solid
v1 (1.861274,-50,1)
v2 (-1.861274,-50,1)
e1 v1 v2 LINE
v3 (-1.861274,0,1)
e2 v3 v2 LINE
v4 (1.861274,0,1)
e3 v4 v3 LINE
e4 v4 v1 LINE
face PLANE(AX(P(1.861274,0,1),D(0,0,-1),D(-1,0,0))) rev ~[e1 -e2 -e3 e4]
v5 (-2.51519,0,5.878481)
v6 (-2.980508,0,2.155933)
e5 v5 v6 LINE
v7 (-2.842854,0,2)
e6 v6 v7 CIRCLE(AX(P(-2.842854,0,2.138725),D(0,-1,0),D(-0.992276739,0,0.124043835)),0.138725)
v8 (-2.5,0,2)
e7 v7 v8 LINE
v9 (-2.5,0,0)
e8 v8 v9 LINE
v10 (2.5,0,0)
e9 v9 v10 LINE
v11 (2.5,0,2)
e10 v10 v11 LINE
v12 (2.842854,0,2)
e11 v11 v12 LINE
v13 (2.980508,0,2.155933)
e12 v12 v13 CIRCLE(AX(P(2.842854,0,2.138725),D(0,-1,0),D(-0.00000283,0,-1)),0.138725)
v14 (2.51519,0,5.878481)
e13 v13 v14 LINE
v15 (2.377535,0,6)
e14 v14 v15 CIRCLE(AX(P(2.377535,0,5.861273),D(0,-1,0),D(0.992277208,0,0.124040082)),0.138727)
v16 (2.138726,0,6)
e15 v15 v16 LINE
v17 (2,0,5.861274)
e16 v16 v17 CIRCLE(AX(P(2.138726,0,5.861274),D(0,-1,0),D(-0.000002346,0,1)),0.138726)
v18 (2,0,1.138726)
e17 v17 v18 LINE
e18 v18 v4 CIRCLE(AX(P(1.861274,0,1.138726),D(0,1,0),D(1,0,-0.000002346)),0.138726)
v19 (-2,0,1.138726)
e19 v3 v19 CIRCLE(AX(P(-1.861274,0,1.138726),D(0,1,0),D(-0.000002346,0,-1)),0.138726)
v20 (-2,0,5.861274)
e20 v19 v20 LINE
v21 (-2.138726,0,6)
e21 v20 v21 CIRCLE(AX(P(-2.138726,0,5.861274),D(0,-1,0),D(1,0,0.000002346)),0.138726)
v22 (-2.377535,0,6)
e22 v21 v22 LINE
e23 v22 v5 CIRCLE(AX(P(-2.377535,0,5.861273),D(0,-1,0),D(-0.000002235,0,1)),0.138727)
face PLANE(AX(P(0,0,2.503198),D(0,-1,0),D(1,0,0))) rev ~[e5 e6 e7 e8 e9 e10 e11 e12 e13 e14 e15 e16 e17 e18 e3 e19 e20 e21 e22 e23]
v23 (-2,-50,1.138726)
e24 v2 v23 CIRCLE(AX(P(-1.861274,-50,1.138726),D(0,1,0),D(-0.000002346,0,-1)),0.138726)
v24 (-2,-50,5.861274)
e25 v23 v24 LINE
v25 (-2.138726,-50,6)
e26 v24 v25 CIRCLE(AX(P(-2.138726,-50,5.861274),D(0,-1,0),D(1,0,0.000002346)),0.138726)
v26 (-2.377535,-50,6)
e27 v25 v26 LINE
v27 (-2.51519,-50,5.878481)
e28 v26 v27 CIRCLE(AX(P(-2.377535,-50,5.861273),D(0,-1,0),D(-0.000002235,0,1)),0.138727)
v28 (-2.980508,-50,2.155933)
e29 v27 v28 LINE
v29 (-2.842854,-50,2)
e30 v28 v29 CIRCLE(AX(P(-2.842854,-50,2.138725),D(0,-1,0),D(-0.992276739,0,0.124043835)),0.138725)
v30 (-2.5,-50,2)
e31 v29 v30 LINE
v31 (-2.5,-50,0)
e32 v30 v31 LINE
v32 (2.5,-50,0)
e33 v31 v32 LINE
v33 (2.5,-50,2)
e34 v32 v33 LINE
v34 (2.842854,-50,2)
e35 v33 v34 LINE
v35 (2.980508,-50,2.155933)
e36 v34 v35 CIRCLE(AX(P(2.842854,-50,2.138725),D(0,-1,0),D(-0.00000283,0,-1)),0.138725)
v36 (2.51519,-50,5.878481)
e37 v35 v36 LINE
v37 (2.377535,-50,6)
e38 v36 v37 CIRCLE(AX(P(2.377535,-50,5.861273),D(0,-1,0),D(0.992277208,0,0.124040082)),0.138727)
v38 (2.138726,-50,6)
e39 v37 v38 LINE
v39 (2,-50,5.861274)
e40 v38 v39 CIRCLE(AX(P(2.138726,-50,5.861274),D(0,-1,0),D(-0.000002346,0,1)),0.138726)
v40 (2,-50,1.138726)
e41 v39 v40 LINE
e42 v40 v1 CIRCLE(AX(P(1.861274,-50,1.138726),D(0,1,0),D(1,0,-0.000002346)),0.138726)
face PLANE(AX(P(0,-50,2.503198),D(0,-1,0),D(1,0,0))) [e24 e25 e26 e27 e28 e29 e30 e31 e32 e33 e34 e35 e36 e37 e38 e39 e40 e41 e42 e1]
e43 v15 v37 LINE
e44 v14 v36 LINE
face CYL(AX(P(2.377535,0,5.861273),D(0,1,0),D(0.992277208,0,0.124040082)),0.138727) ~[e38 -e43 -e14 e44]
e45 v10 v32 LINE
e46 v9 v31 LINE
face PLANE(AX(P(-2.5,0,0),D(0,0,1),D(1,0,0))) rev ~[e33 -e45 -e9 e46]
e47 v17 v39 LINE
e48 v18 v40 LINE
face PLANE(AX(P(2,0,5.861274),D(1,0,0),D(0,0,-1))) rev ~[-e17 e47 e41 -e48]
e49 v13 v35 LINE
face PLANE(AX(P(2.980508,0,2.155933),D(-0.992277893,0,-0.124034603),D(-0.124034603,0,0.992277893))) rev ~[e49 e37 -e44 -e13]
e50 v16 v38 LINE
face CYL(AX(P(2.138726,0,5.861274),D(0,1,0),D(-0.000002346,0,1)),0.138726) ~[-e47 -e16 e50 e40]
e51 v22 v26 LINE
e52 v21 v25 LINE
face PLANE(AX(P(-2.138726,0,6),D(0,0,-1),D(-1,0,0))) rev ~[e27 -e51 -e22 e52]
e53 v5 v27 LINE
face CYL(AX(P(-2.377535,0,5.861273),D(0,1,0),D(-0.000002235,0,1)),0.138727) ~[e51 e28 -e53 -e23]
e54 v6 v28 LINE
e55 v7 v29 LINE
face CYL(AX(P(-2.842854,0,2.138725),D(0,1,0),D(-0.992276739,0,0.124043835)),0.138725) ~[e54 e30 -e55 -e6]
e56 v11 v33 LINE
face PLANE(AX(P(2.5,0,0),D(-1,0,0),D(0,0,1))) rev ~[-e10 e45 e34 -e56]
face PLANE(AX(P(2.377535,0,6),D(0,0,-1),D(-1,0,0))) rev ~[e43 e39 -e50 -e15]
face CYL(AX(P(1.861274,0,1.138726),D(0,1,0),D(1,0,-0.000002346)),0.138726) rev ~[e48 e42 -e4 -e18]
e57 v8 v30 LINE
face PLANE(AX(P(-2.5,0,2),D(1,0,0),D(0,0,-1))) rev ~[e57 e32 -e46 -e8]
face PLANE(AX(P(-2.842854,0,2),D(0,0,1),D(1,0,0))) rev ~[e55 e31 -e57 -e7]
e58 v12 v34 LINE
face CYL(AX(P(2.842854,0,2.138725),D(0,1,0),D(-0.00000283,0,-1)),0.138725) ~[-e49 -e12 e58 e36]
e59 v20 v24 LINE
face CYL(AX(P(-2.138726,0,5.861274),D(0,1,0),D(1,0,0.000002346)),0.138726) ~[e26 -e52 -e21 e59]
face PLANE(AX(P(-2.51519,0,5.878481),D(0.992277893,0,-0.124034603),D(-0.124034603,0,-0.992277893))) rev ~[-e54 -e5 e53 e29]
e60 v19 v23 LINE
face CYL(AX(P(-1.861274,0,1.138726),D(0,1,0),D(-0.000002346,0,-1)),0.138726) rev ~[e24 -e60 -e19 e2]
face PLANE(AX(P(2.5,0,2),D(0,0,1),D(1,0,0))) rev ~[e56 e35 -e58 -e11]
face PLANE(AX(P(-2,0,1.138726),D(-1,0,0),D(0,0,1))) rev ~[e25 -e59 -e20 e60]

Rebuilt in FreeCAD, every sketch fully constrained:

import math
import FreeCAD as App
import Part
import Sketcher
from FreeCAD import Vector

doc = App.newDocument("Part")
body = doc.addObject("PartDesign::Body", "Body")

sketch1 = body.newObject("Sketcher::SketchObject", "Sketch")
sketch1.AttachmentSupport = (doc.getObject("XZ_Plane"), [""])
sketch1.MapMode = "FlatFace"
sketch1.addGeometry([
    Part.LineSegment(Vector(-2.5, 0, 0), Vector(2.5, 0, 0)),
    Part.LineSegment(Vector(2.5, 0, 0), Vector(2.5, 2, 0)),
    Part.LineSegment(Vector(2.5, 2, 0), Vector(2.84, 2, 0)),
    Part.ArcOfCircle(Part.Circle(Vector(2.84, 2.14, 0), Vector(0, 0, 1), 0.14), math.radians(-90), math.radians(7)),
    Part.LineSegment(Vector(2.98, 2.16, 0), Vector(2.52, 5.88, 0)),
    Part.ArcOfCircle(Part.Circle(Vector(2.38, 5.86, 0), Vector(0, 0, 1), 0.14), math.radians(7), math.radians(90)),
    Part.LineSegment(Vector(2.38, 6, 0), Vector(2.14, 6, 0)),
    Part.ArcOfCircle(Part.Circle(Vector(2.14, 5.86, 0), Vector(0, 0, 1), 0.14), math.radians(90), math.radians(180)),
    Part.LineSegment(Vector(2, 5.86, 0), Vector(2, 1.14, 0)),
    Part.ArcOfCircle(Part.Circle(Vector(1.86, 1.14, 0), Vector(0, 0, 1), 0.14), math.radians(-90), math.radians(0)),
    Part.LineSegment(Vector(1.86, 1, 0), Vector(-1.86, 1, 0)),
    Part.ArcOfCircle(Part.Circle(Vector(-1.86, 1.14, 0), Vector(0, 0, 1), 0.14), math.radians(-180), math.radians(-90)),
    Part.LineSegment(Vector(-2, 1.14, 0), Vector(-2, 5.86, 0)),
    Part.ArcOfCircle(Part.Circle(Vector(-2.14, 5.86, 0), Vector(0, 0, 1), 0.14), math.radians(0), math.radians(90)),
    Part.LineSegment(Vector(-2.14, 6, 0), Vector(-2.38, 6, 0)),
    Part.ArcOfCircle(Part.Circle(Vector(-2.38, 5.86, 0), Vector(0, 0, 1), 0.14), math.radians(90), math.radians(173)),
    Part.LineSegment(Vector(-2.52, 5.88, 0), Vector(-2.98, 2.16, 0)),
    Part.ArcOfCircle(Part.Circle(Vector(-2.84, 2.14, 0), Vector(0, 0, 1), 0.14), math.radians(173), math.radians(270)),
    Part.LineSegment(Vector(-2.84, 2, 0), Vector(-2.5, 2, 0)),
    Part.LineSegment(Vector(-2.5, 2, 0), Vector(-2.5, 0, 0)),
], False)
sketch1.addConstraint([
    Sketcher.Constraint("Coincident", 0, 2, 1, 1),
    Sketcher.Constraint("Coincident", 1, 2, 2, 1),
    Sketcher.Constraint("Coincident", 2, 2, 3, 1),
    Sketcher.Constraint("Coincident", 3, 2, 4, 1),
    Sketcher.Constraint("Coincident", 4, 2, 5, 1),
    Sketcher.Constraint("Coincident", 5, 2, 6, 1),
    Sketcher.Constraint("Coincident", 6, 2, 7, 1),
    Sketcher.Constraint("Coincident", 7, 2, 8, 1),
    Sketcher.Constraint("Coincident", 8, 2, 9, 2),
    Sketcher.Constraint("Coincident", 9, 1, 10, 1),
    Sketcher.Constraint("Coincident", 10, 2, 11, 2),
    Sketcher.Constraint("Coincident", 11, 1, 12, 1),
    Sketcher.Constraint("Coincident", 12, 2, 13, 1),
    Sketcher.Constraint("Coincident", 13, 2, 14, 1),
    Sketcher.Constraint("Coincident", 14, 2, 15, 1),
    Sketcher.Constraint("Coincident", 15, 2, 16, 1),
    Sketcher.Constraint("Coincident", 16, 2, 17, 1),
    Sketcher.Constraint("Coincident", 17, 2, 18, 1),
    Sketcher.Constraint("Coincident", 18, 2, 19, 1),
    Sketcher.Constraint("Coincident", 19, 2, 0, 1),
    Sketcher.Constraint("Horizontal", 0),
    Sketcher.Constraint("Vertical", 1),
    Sketcher.Constraint("Horizontal", 2),
    Sketcher.Constraint("Horizontal", 6),
    Sketcher.Constraint("Vertical", 8),
    Sketcher.Constraint("Horizontal", 10),
    Sketcher.Constraint("Vertical", 12),
    Sketcher.Constraint("Horizontal", 14),
    Sketcher.Constraint("Horizontal", 18),
    Sketcher.Constraint("Vertical", 19),
    Sketcher.Constraint("Equal", 3, 5),
    Sketcher.Constraint("Equal", 5, 7),
    Sketcher.Constraint("Equal", 7, 9),
    Sketcher.Constraint("Equal", 9, 11),
    Sketcher.Constraint("Equal", 11, 13),
    Sketcher.Constraint("Equal", 13, 15),
    Sketcher.Constraint("Equal", 15, 17),
    Sketcher.Constraint("Symmetric", 0, 2, 19, 2, -1, 1),
    Sketcher.Constraint("Symmetric", 7, 3, 13, 3, -2),
    Sketcher.Constraint("Symmetric", 3, 3, 17, 3, -2),
    Sketcher.Constraint("Symmetric", 4, 2, 15, 2, -2),
    Sketcher.Constraint("Horizontal", 15, 3, 7, 2),
    Sketcher.Constraint("Horizontal", 11, 3, 8, 2),
    Sketcher.Constraint("Horizontal", 8, 2, 11, 1),
    Sketcher.Constraint("Horizontal", 7, 2, 12, 2),
    Sketcher.Constraint("Horizontal", 3, 2, 16, 2),
    Sketcher.Constraint("Vertical", 3, 3, 2, 2),
    Sketcher.Constraint("Vertical", 7, 3, 6, 2),
    Sketcher.Constraint("Vertical", 11, 3, 10, 2),
    Sketcher.Constraint("Vertical", 15, 3, 14, 2),
    Sketcher.Constraint("Equal", 6, 14),
    Sketcher.Constraint("Equal", 2, 18),
    Sketcher.Constraint("DistanceX", 0, 1, 0, 2, 5.0),
    Sketcher.Constraint("DistanceY", 1, 1, 1, 2, 2.0),
    Sketcher.Constraint("DistanceY", -1, 1, 5, 2, 6.0),
    Sketcher.Constraint("DistanceX", -1, 1, 7, 2, 2.0),
    Sketcher.Constraint("DistanceY", -1, 1, 9, 1, 1.0),
    Sketcher.Constraint("Radius", 3, 0.138725),
    Sketcher.Constraint("DistanceX", 6, 2, 6, 1, 0.238809),
    Sketcher.Constraint("DistanceX", 10, 2, 10, 1, 3.722548),
    Sketcher.Constraint("DistanceX", 2, 1, 2, 2, 0.342854),
    Sketcher.Constraint("DistanceX", -1, 1, 3, 2, 2.980508),
    Sketcher.Constraint("DistanceX", -1, 1, 4, 2, 2.51519),
    Sketcher.Constraint("DistanceY", -1, 1, 4, 2, 5.878481),
])
pad1 = body.newObject("PartDesign::Pad", "Pad")
pad1.Profile = sketch1
pad1.Length = 50

doc.recompute()
